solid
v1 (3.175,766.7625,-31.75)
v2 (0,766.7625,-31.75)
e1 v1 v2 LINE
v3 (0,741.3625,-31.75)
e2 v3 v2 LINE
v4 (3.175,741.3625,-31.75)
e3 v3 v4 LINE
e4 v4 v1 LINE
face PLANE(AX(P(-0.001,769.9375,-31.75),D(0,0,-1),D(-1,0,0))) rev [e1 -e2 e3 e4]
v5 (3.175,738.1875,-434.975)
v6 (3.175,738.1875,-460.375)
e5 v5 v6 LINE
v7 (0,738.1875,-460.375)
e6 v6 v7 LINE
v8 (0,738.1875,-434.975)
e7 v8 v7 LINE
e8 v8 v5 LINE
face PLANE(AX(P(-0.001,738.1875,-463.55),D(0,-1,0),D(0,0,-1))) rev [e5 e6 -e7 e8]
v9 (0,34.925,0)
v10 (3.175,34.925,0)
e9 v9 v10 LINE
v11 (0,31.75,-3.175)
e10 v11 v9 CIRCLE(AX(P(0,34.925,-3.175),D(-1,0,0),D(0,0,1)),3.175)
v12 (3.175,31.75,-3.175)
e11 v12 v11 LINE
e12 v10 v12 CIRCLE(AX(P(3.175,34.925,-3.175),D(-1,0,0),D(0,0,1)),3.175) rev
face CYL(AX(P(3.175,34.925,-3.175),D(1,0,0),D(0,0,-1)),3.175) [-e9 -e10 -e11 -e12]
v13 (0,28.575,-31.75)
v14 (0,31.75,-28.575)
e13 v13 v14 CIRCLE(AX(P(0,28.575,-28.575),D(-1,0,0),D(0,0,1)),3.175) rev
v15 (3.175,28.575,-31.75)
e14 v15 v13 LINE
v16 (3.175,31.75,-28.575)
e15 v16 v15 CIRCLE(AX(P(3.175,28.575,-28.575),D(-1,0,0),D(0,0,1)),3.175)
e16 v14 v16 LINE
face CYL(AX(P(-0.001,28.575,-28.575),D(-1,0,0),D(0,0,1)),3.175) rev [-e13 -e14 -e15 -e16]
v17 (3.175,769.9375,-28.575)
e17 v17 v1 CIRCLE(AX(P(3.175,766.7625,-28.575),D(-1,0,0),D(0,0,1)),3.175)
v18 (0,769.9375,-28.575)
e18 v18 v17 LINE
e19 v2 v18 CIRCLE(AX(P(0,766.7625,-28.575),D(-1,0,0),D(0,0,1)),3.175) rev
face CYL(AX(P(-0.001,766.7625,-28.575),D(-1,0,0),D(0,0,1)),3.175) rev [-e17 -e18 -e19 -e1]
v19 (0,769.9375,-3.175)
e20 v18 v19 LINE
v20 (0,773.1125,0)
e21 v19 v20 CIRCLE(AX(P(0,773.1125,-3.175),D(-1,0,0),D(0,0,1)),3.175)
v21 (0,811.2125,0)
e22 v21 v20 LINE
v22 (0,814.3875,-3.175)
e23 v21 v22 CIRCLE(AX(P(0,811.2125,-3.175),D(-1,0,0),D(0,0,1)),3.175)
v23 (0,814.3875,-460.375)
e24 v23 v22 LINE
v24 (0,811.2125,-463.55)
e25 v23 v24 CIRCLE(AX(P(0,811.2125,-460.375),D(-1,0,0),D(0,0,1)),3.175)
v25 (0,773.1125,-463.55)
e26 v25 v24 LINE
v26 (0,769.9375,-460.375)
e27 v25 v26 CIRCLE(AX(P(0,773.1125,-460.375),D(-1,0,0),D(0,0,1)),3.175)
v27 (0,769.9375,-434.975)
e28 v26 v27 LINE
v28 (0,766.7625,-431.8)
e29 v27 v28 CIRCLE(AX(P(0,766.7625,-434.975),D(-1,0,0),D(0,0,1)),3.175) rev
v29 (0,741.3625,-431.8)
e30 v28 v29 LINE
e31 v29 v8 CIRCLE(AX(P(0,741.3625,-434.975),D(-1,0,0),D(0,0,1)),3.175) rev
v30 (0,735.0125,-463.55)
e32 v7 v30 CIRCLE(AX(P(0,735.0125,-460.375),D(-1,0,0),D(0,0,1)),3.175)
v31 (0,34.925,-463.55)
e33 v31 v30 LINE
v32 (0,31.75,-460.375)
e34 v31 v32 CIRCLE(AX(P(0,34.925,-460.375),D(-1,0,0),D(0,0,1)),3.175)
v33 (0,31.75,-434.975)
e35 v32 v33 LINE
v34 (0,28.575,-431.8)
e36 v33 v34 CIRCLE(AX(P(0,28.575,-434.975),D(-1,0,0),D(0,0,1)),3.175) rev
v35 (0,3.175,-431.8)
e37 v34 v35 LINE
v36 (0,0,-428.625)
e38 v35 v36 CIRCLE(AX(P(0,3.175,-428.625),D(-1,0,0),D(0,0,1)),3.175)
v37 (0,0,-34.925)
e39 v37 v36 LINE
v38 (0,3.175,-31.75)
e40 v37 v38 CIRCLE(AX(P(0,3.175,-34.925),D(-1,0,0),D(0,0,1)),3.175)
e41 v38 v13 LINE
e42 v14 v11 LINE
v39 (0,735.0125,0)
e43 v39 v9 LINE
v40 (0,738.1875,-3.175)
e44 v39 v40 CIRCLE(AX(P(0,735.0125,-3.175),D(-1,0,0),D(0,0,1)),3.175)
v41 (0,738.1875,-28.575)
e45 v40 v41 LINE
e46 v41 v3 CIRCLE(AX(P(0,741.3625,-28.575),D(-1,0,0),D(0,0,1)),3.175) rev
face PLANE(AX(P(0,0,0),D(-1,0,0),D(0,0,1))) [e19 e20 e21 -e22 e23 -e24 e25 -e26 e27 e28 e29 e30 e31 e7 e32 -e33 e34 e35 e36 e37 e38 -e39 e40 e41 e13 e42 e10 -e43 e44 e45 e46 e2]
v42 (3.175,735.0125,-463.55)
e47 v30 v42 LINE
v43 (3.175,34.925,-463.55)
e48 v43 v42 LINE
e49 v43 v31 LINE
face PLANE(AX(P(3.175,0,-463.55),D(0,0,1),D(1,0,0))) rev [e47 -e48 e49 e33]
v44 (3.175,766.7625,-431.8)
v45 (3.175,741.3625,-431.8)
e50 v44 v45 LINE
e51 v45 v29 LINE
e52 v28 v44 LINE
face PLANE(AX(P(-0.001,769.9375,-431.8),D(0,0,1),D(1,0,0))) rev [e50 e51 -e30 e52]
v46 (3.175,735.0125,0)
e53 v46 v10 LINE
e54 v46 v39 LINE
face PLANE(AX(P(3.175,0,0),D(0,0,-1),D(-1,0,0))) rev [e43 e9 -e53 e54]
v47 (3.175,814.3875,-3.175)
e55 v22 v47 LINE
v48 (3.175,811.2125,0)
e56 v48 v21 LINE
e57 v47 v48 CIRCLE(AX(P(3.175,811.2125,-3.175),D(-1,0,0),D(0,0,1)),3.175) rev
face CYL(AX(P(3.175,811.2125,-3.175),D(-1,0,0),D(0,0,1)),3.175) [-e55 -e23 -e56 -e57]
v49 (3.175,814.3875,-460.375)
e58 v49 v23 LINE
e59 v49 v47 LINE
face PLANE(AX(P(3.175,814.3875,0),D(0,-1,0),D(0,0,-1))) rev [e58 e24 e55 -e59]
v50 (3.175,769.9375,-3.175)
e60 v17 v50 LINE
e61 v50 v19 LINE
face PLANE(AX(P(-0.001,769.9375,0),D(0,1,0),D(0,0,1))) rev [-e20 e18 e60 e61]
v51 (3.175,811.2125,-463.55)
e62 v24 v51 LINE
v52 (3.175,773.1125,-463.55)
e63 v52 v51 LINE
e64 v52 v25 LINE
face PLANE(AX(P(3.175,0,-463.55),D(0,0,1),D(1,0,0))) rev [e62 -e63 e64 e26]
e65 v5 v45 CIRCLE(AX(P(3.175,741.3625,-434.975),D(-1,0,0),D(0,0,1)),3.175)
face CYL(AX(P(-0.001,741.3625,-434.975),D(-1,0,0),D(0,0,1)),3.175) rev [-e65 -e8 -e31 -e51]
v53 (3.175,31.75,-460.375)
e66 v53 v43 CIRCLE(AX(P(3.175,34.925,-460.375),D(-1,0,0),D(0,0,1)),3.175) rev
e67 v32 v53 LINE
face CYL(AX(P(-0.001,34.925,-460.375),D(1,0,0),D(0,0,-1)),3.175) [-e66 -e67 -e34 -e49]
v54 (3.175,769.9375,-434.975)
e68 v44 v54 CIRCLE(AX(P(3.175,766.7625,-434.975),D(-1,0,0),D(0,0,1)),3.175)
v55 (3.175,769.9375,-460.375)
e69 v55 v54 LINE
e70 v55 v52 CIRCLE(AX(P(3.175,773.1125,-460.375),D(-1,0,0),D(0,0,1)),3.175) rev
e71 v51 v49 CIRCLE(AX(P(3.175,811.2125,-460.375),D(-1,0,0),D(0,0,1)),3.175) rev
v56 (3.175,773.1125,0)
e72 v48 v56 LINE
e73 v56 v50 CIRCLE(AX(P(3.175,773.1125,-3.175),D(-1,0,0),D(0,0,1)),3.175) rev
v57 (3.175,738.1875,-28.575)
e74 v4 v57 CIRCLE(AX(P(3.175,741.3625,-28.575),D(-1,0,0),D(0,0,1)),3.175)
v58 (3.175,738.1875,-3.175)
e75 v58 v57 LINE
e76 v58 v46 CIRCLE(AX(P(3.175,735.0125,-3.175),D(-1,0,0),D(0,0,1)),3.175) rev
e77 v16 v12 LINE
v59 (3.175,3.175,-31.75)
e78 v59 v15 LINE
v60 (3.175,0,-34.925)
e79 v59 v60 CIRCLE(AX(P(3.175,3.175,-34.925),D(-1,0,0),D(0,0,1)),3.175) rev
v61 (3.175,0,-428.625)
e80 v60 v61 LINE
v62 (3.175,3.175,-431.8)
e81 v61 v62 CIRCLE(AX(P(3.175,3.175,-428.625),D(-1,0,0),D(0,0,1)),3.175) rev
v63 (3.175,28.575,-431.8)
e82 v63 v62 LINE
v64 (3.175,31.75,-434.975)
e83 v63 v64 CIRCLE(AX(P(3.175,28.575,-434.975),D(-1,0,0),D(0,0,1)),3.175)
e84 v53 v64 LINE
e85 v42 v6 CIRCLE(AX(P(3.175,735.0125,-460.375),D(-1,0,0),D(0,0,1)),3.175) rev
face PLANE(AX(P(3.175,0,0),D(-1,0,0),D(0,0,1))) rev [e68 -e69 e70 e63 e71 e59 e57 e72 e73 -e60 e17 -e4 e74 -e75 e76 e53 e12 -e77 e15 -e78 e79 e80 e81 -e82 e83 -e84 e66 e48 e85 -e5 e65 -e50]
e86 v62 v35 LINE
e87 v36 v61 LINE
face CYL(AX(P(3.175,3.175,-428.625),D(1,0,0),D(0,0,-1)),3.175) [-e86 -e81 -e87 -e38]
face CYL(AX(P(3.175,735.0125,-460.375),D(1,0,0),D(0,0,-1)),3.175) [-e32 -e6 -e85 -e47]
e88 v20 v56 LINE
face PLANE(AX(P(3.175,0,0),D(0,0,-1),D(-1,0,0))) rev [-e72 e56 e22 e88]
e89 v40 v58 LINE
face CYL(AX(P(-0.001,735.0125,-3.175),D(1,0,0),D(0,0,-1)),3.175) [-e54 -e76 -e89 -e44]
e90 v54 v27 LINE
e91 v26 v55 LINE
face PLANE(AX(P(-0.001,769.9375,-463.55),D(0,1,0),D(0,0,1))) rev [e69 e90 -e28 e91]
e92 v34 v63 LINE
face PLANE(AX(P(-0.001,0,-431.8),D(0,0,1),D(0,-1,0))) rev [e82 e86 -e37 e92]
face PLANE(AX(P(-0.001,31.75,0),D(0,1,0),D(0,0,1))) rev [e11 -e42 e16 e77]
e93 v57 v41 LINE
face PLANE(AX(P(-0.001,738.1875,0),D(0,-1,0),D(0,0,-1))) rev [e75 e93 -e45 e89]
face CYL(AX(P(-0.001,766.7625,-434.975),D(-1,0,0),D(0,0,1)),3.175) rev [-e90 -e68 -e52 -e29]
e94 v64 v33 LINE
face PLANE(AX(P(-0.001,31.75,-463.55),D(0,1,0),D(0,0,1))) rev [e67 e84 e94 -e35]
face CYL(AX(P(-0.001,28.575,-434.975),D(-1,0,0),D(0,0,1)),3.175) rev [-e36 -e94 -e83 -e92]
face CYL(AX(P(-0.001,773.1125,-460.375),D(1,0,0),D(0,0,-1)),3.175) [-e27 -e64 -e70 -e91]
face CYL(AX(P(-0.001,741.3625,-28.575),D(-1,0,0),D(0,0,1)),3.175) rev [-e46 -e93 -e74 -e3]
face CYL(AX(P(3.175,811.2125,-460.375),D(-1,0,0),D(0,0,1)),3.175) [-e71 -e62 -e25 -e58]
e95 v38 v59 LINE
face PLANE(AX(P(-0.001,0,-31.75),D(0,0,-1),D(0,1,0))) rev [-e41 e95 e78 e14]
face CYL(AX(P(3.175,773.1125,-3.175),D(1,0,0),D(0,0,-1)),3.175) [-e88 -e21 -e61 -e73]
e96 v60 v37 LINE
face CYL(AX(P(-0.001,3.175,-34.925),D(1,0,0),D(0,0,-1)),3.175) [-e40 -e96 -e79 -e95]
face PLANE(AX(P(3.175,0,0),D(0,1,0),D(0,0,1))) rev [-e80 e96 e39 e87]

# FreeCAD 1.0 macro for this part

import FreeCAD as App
import Part
import Sketcher
Q = App.Units.Quantity


def edges_at(feature, points):
    """Names of the edges that pass closest to the given points."""
    edges = feature.Shape.Edges
    near = lambda p: min(range(len(edges)), key=lambda i: edges[i].distToShape(Part.Vertex(*p))[0])
    return sorted({f"Edge{near(p) + 1}" for p in points})


def add_polygon(sketch, points):
    """Adds a closed chain of lines whose ends are joined by coincident constraints."""
    first, n = sketch.GeometryCount, len(points)
    for a, b in zip(points, points[1:] + points[:1]):
        sketch.addGeometry(Part.LineSegment(App.Vector(*a, 0), App.Vector(*b, 0)), False)
    for i in range(n):
        sketch.addConstraint(Sketcher.Constraint("Coincident", first + i, 2, first + (i + 1) % n, 1))

doc = App.newDocument("Part")
body = doc.addObject("PartDesign::Body", "Body")

# Sketch on YZ plane
sketch1 = doc.addObject("Sketcher::SketchObject", "Sketch")
body.addObject(sketch1)
sketch1.AttachmentSupport = (doc.YZ_Plane, [""])
sketch1.MapMode = "FlatFace"
add_polygon(sketch1, [(814, 0), (0, 0), (0, -464), (814, -464)])  # lines 0-3
sketch1.addConstraint([
    Sketcher.Constraint("Horizontal", 0),
    Sketcher.Constraint("Vertical", 1),
    Sketcher.Constraint("Horizontal", 2),
    Sketcher.Constraint("Vertical", 3),
    Sketcher.Constraint("Coincident", 0, 2, -1, 1),
    Sketcher.Constraint("DistanceY", 1, 2, 1, 1, Q("18.25 in")),
    Sketcher.Constraint("DistanceX", 0, 2, 0, 1, Q("32.0625 in")),
])
pad1 = doc.addObject("PartDesign::Pad", "Pad")
body.addObject(pad1)
pad1.Profile = sketch1
pad1.Length = Q("0.125 in")
doc.recompute()

fillet = doc.addObject("PartDesign::Fillet", "Fillet")
body.addObject(fillet)
fillet.Base = (pad1, edges_at(pad1, [
    (1.587, 814.388, 0),
    (1.587, 814.388, -463.55),
    (1.587, 0, -463.55),
    (1.587, 0, 0),
]))
fillet.Radius = Q("0.125 in")

# Sketch on YZ plane
sketch2 = doc.addObject("Sketcher::SketchObject", "Sketch001")
body.addObject(sketch2)
sketch2.AttachmentSupport = (doc.YZ_Plane, [""])
sketch2.MapMode = "FlatFace"
sketch2.AttachmentOffset = App.Placement(App.Vector(0, 0, 0.125 * 25.4), App.Rotation())
add_polygon(sketch2, [(770, 0), (738, 0), (738, -32), (770, -32)])  # lines 0-3
sketch2.addConstraint([
    Sketcher.Constraint("Horizontal", 0),
    Sketcher.Constraint("Vertical", 1),
    Sketcher.Constraint("Horizontal", 2),
    Sketcher.Constraint("Vertical", 3),
    Sketcher.Constraint("PointOnObject", 0, 2, -1),
    Sketcher.Constraint("Equal", 2, 1),
    Sketcher.Constraint("DistanceX", 0, 2, 0, 1, Q("1.25 in")),
    Sketcher.Constraint("DistanceX", -1, 1, 0, 2, Q("29.0625 in")),
])
pocket1 = doc.addObject("PartDesign::Pocket", "Pocket")
body.addObject(pocket1)
pocket1.Profile = sketch2
pocket1.Type = "UpToFirst"

# Sketch on YZ plane
sketch3 = doc.addObject("Sketcher::SketchObject", "Sketch002")
body.addObject(sketch3)
sketch3.AttachmentSupport = (doc.YZ_Plane, [""])
sketch3.MapMode = "FlatFace"
sketch3.AttachmentOffset = App.Placement(App.Vector(0, 0, 0.125 * 25.4), App.Rotation())
add_polygon(sketch3, [(770, -432), (738, -432), (738, -464), (770, -464)])  # lines 0-3
sketch3.addConstraint([
    Sketcher.Constraint("Horizontal", 0),
    Sketcher.Constraint("Vertical", 1),
    Sketcher.Constraint("Horizontal", 2),
    Sketcher.Constraint("Vertical", 3),
    Sketcher.Constraint("Equal", 2, 1),
    Sketcher.Constraint("DistanceY", 0, 2, -1, 1, Q("17 in")),
    Sketcher.Constraint("DistanceX", 0, 2, 0, 1, Q("1.25 in")),
    Sketcher.Constraint("DistanceX", -1, 1, 0, 2, Q("29.0625 in")),
])
pocket2 = doc.addObject("PartDesign::Pocket", "Pocket001")
body.addObject(pocket2)
pocket2.Profile = sketch3
pocket2.Type = "UpToFirst"

# Sketch on YZ plane
sketch4 = doc.addObject("Sketcher::SketchObject", "Sketch003")
body.addObject(sketch4)
sketch4.AttachmentSupport = (doc.YZ_Plane, [""])
sketch4.MapMode = "FlatFace"
sketch4.AttachmentOffset = App.Placement(App.Vector(0, 0, 0.125 * 25.4), App.Rotation())
add_polygon(sketch4, [(32, -432), (0, -432), (0, -464), (32, -464)])  # lines 0-3
sketch4.addConstraint([
    Sketcher.Constraint("Horizontal", 0),
    Sketcher.Constraint("Vertical", 1),
    Sketcher.Constraint("Horizontal", 2),
    Sketcher.Constraint("Vertical", 3),
    Sketcher.Constraint("PointOnObject", 0, 2, -2),
    Sketcher.Constraint("Equal", 2, 1),
    Sketcher.Constraint("DistanceY", 0, 2, -1, 1, Q("17 in")),
    Sketcher.Constraint("DistanceX", 0, 2, 0, 1, Q("1.25 in")),
])
pocket3 = doc.addObject("PartDesign::Pocket", "Pocket002")
body.addObject(pocket3)
pocket3.Profile = sketch4
pocket3.Type = "UpToFirst"

# Sketch on YZ plane
sketch5 = doc.addObject("Sketcher::SketchObject", "Sketch004")
body.addObject(sketch5)
sketch5.AttachmentSupport = (doc.YZ_Plane, [""])
sketch5.MapMode = "FlatFace"
sketch5.AttachmentOffset = App.Placement(App.Vector(0, 0, 0.125 * 25.4), App.Rotation())
add_polygon(sketch5, [(32, 0), (0, 0), (0, -32), (32, -32)])  # lines 0-3
sketch5.addConstraint([
    Sketcher.Constraint("Horizontal", 0),
    Sketcher.Constraint("Vertical", 1),
    Sketcher.Constraint("Horizontal", 2),
    Sketcher.Constraint("Vertical", 3),
    Sketcher.Constraint("Coincident", 0, 2, -1, 1),
    Sketcher.Constraint("Equal", 2, 1),
    Sketcher.Constraint("DistanceX", 0, 2, 0, 1, Q("1.25 in")),
])
pocket4 = doc.addObject("PartDesign::Pocket", "Pocket003")
body.addObject(pocket4)
pocket4.Profile = sketch5
pocket4.Type = "UpToFirst"
doc.recompute()

fillet2 = doc.addObject("PartDesign::Fillet", "Fillet001")
body.addObject(fillet2)
fillet2.Base = (pocket4, edges_at(pocket4, [
    (1.587, 738.188, 0),
    (1.587, 769.938, 0),
    (1.587, 769.938, -31.75),
    (1.587, 738.188, -31.75),
]))
fillet2.Radius = Q("0.125 in")
doc.recompute()

fillet3 = doc.addObject("PartDesign::Fillet", "Fillet002")
body.addObject(fillet3)
fillet3.Base = (fillet2, edges_at(fillet2, [
    (1.587, 769.938, -431.8),
    (1.587, 769.938, -463.55),
    (1.587, 738.188, -463.55),
    (1.587, 738.188, -431.8),
]))
fillet3.Radius = Q("0.125 in")
doc.recompute()

fillet4 = doc.addObject("PartDesign::Fillet", "Fillet003")
body.addObject(fillet4)
fillet4.Base = (fillet3, edges_at(fillet3, [
    (1.587, 31.75, 0),
    (1.587, 31.75, -31.75),
    (1.587, 0, -31.75),
    (1.587, 0, -431.8),
    (1.587, 31.75, -431.8),
    (1.587, 31.75, -463.55),
]))
fillet4.Radius = Q("0.125 in")

doc.recompute()
